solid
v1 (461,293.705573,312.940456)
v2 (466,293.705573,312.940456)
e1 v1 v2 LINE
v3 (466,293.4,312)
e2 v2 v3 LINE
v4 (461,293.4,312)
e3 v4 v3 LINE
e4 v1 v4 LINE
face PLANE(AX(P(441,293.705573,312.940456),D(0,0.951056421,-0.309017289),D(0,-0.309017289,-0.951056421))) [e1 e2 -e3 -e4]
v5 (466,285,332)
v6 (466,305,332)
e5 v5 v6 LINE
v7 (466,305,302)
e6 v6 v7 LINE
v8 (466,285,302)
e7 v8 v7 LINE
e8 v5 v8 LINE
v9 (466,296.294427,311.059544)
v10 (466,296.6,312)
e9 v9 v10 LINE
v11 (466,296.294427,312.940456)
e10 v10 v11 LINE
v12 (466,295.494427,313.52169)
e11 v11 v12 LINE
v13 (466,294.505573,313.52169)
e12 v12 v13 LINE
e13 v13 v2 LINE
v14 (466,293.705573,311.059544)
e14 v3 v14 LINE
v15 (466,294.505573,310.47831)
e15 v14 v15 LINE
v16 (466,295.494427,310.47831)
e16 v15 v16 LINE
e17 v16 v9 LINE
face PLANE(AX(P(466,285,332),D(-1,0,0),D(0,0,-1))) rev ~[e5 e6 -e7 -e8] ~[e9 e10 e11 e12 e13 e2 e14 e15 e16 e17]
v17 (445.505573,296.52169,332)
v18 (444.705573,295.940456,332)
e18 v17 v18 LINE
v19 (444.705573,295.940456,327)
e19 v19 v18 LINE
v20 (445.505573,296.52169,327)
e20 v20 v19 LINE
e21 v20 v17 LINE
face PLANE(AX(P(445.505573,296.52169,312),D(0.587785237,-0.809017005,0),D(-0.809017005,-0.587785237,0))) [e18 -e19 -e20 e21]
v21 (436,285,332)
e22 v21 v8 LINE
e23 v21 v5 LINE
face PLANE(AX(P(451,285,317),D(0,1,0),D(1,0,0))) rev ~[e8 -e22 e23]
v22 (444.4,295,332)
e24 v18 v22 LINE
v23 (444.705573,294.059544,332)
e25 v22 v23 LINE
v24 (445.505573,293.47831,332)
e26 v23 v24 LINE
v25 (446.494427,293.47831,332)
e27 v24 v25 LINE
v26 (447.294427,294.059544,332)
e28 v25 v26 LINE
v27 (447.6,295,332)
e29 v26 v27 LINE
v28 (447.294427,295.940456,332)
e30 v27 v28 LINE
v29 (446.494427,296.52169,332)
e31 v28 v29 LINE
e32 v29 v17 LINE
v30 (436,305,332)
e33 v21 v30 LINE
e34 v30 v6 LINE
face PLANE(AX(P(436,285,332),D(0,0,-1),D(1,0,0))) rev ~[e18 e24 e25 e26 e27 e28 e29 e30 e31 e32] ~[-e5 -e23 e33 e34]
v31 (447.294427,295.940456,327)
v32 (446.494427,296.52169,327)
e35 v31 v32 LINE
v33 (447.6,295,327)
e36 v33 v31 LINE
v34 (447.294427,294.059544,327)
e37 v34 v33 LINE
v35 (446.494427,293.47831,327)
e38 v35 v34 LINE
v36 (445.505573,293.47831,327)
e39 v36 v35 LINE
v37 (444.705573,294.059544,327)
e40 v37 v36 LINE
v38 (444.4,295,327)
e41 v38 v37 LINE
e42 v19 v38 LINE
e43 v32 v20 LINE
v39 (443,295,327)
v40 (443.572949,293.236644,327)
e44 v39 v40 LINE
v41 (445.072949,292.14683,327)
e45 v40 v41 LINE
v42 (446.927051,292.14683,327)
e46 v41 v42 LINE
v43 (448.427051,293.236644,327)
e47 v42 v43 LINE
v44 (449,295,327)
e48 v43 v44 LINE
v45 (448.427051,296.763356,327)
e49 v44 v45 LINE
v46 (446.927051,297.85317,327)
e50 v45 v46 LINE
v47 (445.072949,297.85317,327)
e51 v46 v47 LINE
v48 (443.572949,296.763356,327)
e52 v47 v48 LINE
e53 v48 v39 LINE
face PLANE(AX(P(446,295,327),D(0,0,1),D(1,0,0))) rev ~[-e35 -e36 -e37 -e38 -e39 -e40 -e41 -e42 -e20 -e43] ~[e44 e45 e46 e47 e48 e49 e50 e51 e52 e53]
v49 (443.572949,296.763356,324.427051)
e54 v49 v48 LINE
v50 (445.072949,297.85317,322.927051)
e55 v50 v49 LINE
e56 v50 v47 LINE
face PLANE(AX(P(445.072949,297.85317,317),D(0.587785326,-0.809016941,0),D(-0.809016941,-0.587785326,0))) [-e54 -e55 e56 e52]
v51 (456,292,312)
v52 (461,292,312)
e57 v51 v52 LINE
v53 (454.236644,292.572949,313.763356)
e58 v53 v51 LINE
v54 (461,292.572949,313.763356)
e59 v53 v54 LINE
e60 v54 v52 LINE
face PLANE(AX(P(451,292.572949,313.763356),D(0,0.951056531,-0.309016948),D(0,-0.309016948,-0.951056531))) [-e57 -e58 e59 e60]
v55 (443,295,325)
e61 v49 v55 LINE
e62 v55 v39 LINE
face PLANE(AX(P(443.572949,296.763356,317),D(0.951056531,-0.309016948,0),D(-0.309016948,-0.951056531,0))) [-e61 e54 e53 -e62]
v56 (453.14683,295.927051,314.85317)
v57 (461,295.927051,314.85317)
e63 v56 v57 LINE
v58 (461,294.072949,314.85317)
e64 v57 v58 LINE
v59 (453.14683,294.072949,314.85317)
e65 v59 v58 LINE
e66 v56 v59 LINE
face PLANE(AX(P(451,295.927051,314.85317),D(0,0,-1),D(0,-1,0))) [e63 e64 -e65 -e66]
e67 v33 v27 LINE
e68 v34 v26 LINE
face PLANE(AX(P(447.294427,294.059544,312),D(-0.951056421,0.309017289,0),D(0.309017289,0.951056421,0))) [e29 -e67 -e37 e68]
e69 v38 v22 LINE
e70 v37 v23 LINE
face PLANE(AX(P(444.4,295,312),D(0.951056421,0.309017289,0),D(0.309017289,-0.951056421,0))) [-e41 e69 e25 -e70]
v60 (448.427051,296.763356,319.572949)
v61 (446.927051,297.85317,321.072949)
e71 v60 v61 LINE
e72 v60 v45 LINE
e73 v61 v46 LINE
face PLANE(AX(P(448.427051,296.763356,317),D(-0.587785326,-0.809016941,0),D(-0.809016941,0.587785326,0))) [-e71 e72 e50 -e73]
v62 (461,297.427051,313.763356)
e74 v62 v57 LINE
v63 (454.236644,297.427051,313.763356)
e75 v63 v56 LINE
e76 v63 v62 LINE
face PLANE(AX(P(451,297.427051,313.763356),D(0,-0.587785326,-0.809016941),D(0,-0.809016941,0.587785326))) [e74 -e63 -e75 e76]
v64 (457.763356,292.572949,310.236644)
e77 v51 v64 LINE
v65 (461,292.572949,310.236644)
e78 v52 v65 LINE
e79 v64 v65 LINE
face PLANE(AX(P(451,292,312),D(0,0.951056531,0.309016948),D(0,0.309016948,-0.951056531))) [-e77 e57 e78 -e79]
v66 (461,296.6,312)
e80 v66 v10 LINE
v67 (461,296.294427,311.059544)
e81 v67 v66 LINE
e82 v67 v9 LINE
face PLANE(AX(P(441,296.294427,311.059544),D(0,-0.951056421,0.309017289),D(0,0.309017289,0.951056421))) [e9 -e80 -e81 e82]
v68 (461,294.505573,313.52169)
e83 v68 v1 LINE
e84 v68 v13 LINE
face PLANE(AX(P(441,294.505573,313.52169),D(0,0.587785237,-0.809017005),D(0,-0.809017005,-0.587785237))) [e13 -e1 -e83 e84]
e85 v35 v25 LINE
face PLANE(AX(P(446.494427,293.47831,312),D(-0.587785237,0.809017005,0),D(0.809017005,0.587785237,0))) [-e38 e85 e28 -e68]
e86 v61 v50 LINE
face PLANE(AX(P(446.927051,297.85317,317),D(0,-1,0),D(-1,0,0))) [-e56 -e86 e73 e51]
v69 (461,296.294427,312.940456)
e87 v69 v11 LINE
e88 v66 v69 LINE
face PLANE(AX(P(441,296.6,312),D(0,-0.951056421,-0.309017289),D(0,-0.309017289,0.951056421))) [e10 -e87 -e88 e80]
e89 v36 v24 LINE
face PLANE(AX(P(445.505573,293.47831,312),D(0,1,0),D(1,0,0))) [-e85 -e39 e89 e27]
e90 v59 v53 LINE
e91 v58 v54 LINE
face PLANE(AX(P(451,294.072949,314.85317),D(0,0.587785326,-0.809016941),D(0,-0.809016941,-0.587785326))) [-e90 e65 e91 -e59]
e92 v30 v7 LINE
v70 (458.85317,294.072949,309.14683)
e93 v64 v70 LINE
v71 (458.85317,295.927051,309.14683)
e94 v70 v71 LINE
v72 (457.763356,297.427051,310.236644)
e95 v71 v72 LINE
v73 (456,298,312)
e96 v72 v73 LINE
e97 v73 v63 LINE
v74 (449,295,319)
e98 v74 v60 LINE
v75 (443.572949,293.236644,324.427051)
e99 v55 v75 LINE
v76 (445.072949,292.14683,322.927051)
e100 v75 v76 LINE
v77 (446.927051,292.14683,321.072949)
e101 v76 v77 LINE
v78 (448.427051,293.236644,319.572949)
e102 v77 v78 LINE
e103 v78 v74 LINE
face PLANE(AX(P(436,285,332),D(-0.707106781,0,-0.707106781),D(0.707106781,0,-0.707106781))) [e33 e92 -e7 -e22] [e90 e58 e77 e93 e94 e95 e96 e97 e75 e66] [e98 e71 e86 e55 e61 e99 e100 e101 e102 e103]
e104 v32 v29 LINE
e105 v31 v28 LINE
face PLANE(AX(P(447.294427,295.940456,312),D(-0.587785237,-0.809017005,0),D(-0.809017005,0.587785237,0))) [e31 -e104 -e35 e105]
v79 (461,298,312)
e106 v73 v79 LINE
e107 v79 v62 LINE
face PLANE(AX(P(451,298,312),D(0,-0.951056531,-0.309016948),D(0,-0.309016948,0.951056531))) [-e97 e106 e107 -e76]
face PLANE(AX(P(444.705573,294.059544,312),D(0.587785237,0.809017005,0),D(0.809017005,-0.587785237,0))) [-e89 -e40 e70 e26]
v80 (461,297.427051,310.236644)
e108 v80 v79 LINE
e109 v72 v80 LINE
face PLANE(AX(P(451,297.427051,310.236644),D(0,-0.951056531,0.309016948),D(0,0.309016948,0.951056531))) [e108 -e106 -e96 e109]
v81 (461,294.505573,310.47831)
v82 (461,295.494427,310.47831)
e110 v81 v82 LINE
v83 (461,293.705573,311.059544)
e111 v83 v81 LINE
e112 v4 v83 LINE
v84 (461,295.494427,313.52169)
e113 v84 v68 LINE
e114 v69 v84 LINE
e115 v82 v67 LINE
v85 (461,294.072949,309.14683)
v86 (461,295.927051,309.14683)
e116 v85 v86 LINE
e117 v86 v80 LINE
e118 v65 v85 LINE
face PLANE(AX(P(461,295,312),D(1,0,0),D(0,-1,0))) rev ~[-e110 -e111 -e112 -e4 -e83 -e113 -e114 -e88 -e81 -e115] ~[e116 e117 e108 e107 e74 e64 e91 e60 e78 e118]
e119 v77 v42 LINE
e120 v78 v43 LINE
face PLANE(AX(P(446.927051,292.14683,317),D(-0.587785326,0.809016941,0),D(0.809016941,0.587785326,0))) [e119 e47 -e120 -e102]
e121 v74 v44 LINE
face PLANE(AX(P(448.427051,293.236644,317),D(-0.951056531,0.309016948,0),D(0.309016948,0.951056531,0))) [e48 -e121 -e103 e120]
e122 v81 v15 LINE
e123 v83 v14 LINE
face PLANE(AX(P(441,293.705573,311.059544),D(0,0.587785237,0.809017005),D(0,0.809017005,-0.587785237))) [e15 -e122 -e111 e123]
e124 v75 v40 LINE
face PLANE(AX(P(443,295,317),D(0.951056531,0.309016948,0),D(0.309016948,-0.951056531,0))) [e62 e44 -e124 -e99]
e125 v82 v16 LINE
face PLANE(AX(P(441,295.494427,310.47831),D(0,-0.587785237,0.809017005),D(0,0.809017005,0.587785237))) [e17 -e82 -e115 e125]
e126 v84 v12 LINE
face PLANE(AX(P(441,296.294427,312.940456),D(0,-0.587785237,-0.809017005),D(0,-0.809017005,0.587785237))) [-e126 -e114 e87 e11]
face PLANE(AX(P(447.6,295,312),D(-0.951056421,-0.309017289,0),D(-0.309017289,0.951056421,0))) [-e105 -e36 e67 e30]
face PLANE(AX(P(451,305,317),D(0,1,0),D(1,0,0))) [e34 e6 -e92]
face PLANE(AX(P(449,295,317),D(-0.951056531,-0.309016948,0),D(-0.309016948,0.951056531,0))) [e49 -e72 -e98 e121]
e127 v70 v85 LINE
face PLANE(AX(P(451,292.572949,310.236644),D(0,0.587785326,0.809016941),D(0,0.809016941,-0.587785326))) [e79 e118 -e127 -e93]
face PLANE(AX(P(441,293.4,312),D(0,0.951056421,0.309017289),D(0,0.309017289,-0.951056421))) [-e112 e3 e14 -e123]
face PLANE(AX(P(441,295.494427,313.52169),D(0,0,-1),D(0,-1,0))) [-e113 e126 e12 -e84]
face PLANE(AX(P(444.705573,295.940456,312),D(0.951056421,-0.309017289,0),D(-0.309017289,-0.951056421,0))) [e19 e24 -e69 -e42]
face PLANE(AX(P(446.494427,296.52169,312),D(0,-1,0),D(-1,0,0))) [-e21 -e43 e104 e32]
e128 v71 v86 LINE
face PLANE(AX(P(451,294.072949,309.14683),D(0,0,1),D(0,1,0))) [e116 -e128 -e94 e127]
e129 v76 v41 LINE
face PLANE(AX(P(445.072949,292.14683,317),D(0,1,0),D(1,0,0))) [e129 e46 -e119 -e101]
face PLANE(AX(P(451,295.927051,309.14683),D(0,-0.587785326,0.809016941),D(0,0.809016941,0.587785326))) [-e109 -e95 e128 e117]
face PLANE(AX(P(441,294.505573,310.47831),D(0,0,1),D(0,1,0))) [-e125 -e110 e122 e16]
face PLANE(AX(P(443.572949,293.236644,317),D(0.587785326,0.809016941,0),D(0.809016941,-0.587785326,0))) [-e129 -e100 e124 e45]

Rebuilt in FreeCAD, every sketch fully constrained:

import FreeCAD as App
import Part
import Sketcher
Q = App.Units.Quantity


def add_polygon(sketch, points):
    """Adds a closed chain of lines whose ends are joined by coincident constraints."""
    first, n = sketch.GeometryCount, len(points)
    for a, b in zip(points, points[1:] + points[:1]):
        sketch.addGeometry(Part.LineSegment(App.Vector(*a, 0), App.Vector(*b, 0)), False)
    for i in range(n):
        sketch.addConstraint(Sketcher.Constraint("Coincident", first + i, 2, first + (i + 1) % n, 1))

doc = App.newDocument("Part")
params = doc.addObject("Spreadsheet::Sheet", "Params")
for row, (alias, value) in enumerate([
    ("pad1_length", "30 mm"),
    ("pad2_length", "10 mm"),
    ("pad3_length", "30 mm"),
    ("pad4_length", "10 mm"),
    ("sketch5_width", "60 mm"),
    ("sketch5_height", "30 mm"),
    ("pad5_length", "20 mm"),
    ("sketch6_width", "30 mm"),
    ("pad6_length", "20 mm"),
], start=1):
    params.set(f"A{row}", alias)
    params.set(f"B{row}", "=" + value)
    params.setAlias(f"B{row}", alias)

body = doc.addObject("PartDesign::Body", "Body")

# Sketch on XY plane
sketch1 = body.newObject("Sketcher::SketchObject", "Sketch")
sketch1.AttachmentSupport = (doc.getObject("XY_Plane"), [""])
sketch1.MapMode = "FlatFace"
add_polygon(sketch1, [(1.6, 0), (1.3, 0.9), (0.5, 1.5), (-0.5, 1.5), (-1.3, 0.9), (-1.6, 0), (-1.3, -0.9), (-0.5, -1.5), (0.5, -1.5), (1.3, -0.9)])  # lines 0-9
sketch1.addConstraint([
    Sketcher.Constraint("Horizontal", 2),
    Sketcher.Constraint("Horizontal", 7),
    Sketcher.Constraint("Symmetric", 0, 2, 5, 2, -1, 1),
    Sketcher.Constraint("Symmetric", 1, 2, 6, 2, -1, 1),
    Sketcher.Constraint("Symmetric", 3, 2, 8, 2, -1, 1),
    Sketcher.Constraint("Symmetric", 4, 2, 9, 2, -1, 1),
    Sketcher.Constraint("Symmetric", 0, 2, 3, 2, -2),
    Sketcher.Constraint("PointOnObject", 4, 2, -1),
    Sketcher.Constraint("Parallel", 3, 8),
    Sketcher.Constraint("Vertical", 2, 2, 6, 2),
    Sketcher.Constraint("Equal", 0, 1),
    Sketcher.Constraint("Angle", 0, Q("108.000018 deg")),
    Sketcher.Constraint("Angle", 1, Q("144.000001 deg")),
    Sketcher.Constraint("DistanceX", 4, 2, -1, 1, 1.6),
    Sketcher.Constraint("DistanceX", 1, 2, 0, 2, 0.8),
])
pad1 = body.newObject("PartDesign::Pad", "Pad")
pad1.Profile = sketch1
pad1.setExpression("Length", "Params.pad1_length")
body2 = doc.addObject("PartDesign::Body", "Body001")
doc.recompute()

body.Placement = App.Placement(App.Vector(0, 0, 0), App.Rotation(App.Vector(0, 1, 0), 90))
boolean = body2.newObject("PartDesign::Boolean", "Boolean")
boolean.Type = "Fuse"
boolean.addObjects([body])
body3 = doc.addObject("PartDesign::Body", "Body002")
doc.recompute()

body2.Placement = App.Placement(App.Vector(5, 20, 10), App.Rotation(App.Vector(0, 0, 1), 0))
boolean2 = body3.newObject("PartDesign::Boolean", "Boolean001")
boolean2.Type = "Fuse"
boolean2.addObjects([body2])
body4 = doc.addObject("PartDesign::Body", "Body003")

# Sketch on XY plane
sketch2 = body4.newObject("Sketcher::SketchObject", "Sketch001")
sketch2.AttachmentSupport = (doc.getObject("XY_Plane003"), [""])
sketch2.MapMode = "FlatFace"
add_polygon(sketch2, [(3, 0), (2.4, 1.8), (0.9, 2.9), (-0.9, 2.9), (-2.4, 1.8), (-3, 0), (-2.4, -1.8), (-0.9, -2.9), (0.9, -2.9), (2.4, -1.8)])  # lines 0-9
sketch2.addConstraint([
    Sketcher.Constraint("Horizontal", 2),
    Sketcher.Constraint("Horizontal", 7),
    Sketcher.Constraint("Symmetric", 0, 2, 5, 2, -1, 1),
    Sketcher.Constraint("Symmetric", 1, 2, 6, 2, -1, 1),
    Sketcher.Constraint("Symmetric", 3, 2, 8, 2, -1, 1),
    Sketcher.Constraint("Symmetric", 4, 2, 9, 2, -1, 1),
    Sketcher.Constraint("Symmetric", 0, 2, 3, 2, -2),
    Sketcher.Constraint("PointOnObject", 4, 2, -1),
    Sketcher.Constraint("Parallel", 3, 8),
    Sketcher.Constraint("Vertical", 2, 2, 6, 2),
    Sketcher.Constraint("Equal", 0, 1),
    Sketcher.Constraint("Angle", 0, Q("107.999997 deg")),
    Sketcher.Constraint("Angle", 1, Q("143.999995 deg")),
    Sketcher.Constraint("DistanceX", 4, 2, -1, 1, 3.0),
    Sketcher.Constraint("DistanceX", 1, 2, 0, 2, 1.5),
])
pad2 = body4.newObject("PartDesign::Pad", "Pad001")
pad2.Profile = sketch2
pad2.setExpression("Length", "Params.pad2_length")
body5 = doc.addObject("PartDesign::Body", "Body004")
doc.recompute()

body4.Placement = App.Placement(App.Vector(0, 0, 0), App.Rotation(App.Vector(0, 1, 0), 90))
boolean3 = body5.newObject("PartDesign::Boolean", "Boolean002")
boolean3.Type = "Fuse"
boolean3.addObjects([body4])
body6 = doc.addObject("PartDesign::Body", "Body005")
doc.recompute()

body5.Placement = App.Placement(App.Vector(15, 20, 10), App.Rotation(App.Vector(0, 0, 1), 0))
boolean4 = body6.newObject("PartDesign::Boolean", "Boolean003")
boolean4.Type = "Fuse"
boolean4.addObjects([body5])
body7 = doc.addObject("PartDesign::Body", "Body006")

# Sketch on XY plane
sketch3 = body7.newObject("Sketcher::SketchObject", "Sketch002")
sketch3.AttachmentSupport = (doc.getObject("XY_Plane006"), [""])
sketch3.MapMode = "FlatFace"
add_polygon(sketch3, [(1.6, 0), (1.3, 0.9), (0.5, 1.5), (-0.5, 1.5), (-1.3, 0.9), (-1.6, 0), (-1.3, -0.9), (-0.5, -1.5), (0.5, -1.5), (1.3, -0.9)])  # lines 0-9
sketch3.addConstraint([
    Sketcher.Constraint("Horizontal", 2),
    Sketcher.Constraint("Horizontal", 7),
    Sketcher.Constraint("Symmetric", 0, 2, 5, 2, -1, 1),
    Sketcher.Constraint("Symmetric", 1, 2, 6, 2, -1, 1),
    Sketcher.Constraint("Symmetric", 3, 2, 8, 2, -1, 1),
    Sketcher.Constraint("Symmetric", 4, 2, 9, 2, -1, 1),
    Sketcher.Constraint("Symmetric", 0, 2, 3, 2, -2),
    Sketcher.Constraint("PointOnObject", 4, 2, -1),
    Sketcher.Constraint("Parallel", 3, 8),
    Sketcher.Constraint("Vertical", 2, 2, 6, 2),
    Sketcher.Constraint("Equal", 0, 1),
    Sketcher.Constraint("Angle", 0, Q("108.000018 deg")),
    Sketcher.Constraint("Angle", 1, Q("144.000001 deg")),
    Sketcher.Constraint("DistanceX", 4, 2, -1, 1, 1.6),
    Sketcher.Constraint("DistanceX", 1, 2, 0, 2, 0.8),
])
pad3 = body7.newObject("PartDesign::Pad", "Pad002")
pad3.Profile = sketch3
pad3.setExpression("Length", "Params.pad3_length")
body8 = doc.addObject("PartDesign::Body", "Body007")
doc.recompute()

body7.Placement = App.Placement(App.Vector(0, 0, 0), App.Rotation(App.Vector(1, 0, 0), 90))
boolean5 = body8.newObject("PartDesign::Boolean", "Boolean004")
boolean5.Type = "Fuse"
boolean5.addObjects([body7])
body9 = doc.addObject("PartDesign::Body", "Body008")
doc.recompute()

body8.Placement = App.Placement(App.Vector(10, 20, 10), App.Rotation(App.Vector(0, 0, 1), 0))
boolean6 = body9.newObject("PartDesign::Boolean", "Boolean005")
boolean6.Type = "Fuse"
boolean6.addObjects([body8])
body10 = doc.addObject("PartDesign::Body", "Body009")

# Sketch on XY plane
sketch4 = body10.newObject("Sketcher::SketchObject", "Sketch003")
sketch4.AttachmentSupport = (doc.getObject("XY_Plane009"), [""])
sketch4.MapMode = "FlatFace"
add_polygon(sketch4, [(3, 0), (2.4, 1.8), (0.9, 2.9), (-0.9, 2.9), (-2.4, 1.8), (-3, 0), (-2.4, -1.8), (-0.9, -2.9), (0.9, -2.9), (2.4, -1.8)])  # lines 0-9
sketch4.addConstraint([
    Sketcher.Constraint("Horizontal", 2),
    Sketcher.Constraint("Horizontal", 7),
    Sketcher.Constraint("Symmetric", 0, 2, 5, 2, -1, 1),
    Sketcher.Constraint("Symmetric", 1, 2, 6, 2, -1, 1),
    Sketcher.Constraint("Symmetric", 3, 2, 8, 2, -1, 1),
    Sketcher.Constraint("Symmetric", 4, 2, 9, 2, -1, 1),
    Sketcher.Constraint("Symmetric", 0, 2, 3, 2, -2),
    Sketcher.Constraint("PointOnObject", 4, 2, -1),
    Sketcher.Constraint("Parallel", 3, 8),
    Sketcher.Constraint("Vertical", 2, 2, 6, 2),
    Sketcher.Constraint("Equal", 0, 1),
    Sketcher.Constraint("Angle", 0, Q("107.999997 deg")),
    Sketcher.Constraint("Angle", 1, Q("143.999995 deg")),
    Sketcher.Constraint("DistanceX", 4, 2, -1, 1, 3.0),
    Sketcher.Constraint("DistanceX", 1, 2, 0, 2, 1.5),
])
pad4 = body10.newObject("PartDesign::Pad", "Pad003")
pad4.Profile = sketch4
pad4.setExpression("Length", "Params.pad4_length")
body11 = doc.addObject("PartDesign::Body", "Body010")
doc.recompute()

body10.Placement = App.Placement(App.Vector(0, 0, 0), App.Rotation(App.Vector(1, 0, 0), 90))
boolean7 = body11.newObject("PartDesign::Boolean", "Boolean006")
boolean7.Type = "Fuse"
boolean7.addObjects([body10])
body12 = doc.addObject("PartDesign::Body", "Body011")
doc.recompute()

body11.Placement = App.Placement(App.Vector(10, 15, 10), App.Rotation(App.Vector(0, 0, 1), 0))
boolean8 = body12.newObject("PartDesign::Boolean", "Boolean007")
boolean8.Type = "Fuse"
boolean8.addObjects([body11])
body13 = doc.addObject("PartDesign::Body", "Body012")

# Sketch on XY plane
sketch5 = body13.newObject("Sketcher::SketchObject", "Sketch004")
sketch5.AttachmentSupport = (doc.getObject("XY_Plane012"), [""])
sketch5.MapMode = "FlatFace"
add_polygon(sketch5, [(0, 30), (0, 0), (60, 0), (60, 30)])  # lines 0-3
sketch5.addConstraint([
    Sketcher.Constraint("Vertical", 0),
    Sketcher.Constraint("Horizontal", 1),
    Sketcher.Constraint("Vertical", 2),
    Sketcher.Constraint("Horizontal", 3),
    Sketcher.Constraint("Coincident", 0, 2, -1, 1),
    Sketcher.Constraint("DistanceX", 1, 1, 1, 2, 60.0),
    Sketcher.Constraint("DistanceY", 0, 2, 0, 1, 30.0),
])
sketch5.setExpression("Constraints[9]", "Params.sketch5_width")
sketch5.setExpression("Constraints[10]", "Params.sketch5_height")
pad5 = body13.newObject("PartDesign::Pad", "Pad004")
pad5.Profile = sketch5
pad5.setExpression("Length", "Params.pad5_length")
body14 = doc.addObject("PartDesign::Body", "Body013")
doc.recompute()

body13.Placement = App.Placement(App.Vector(0, 0, 0), App.Rotation(App.Vector(0, 0, 1), 45))
boolean9 = body14.newObject("PartDesign::Boolean", "Boolean008")
boolean9.Type = "Fuse"
boolean9.addObjects([body13])
doc.recompute()

boolean10 = body14.newObject("PartDesign::Boolean", "Boolean009")
boolean10.Type = "Fuse"
boolean10.addObjects([body3])
doc.recompute()

boolean11 = body14.newObject("PartDesign::Boolean", "Boolean010")
boolean11.Type = "Fuse"
boolean11.addObjects([body6])
doc.recompute()

boolean12 = body14.newObject("PartDesign::Boolean", "Boolean011")
boolean12.Type = "Fuse"
boolean12.addObjects([body9])
doc.recompute()

boolean13 = body14.newObject("PartDesign::Boolean", "Boolean012")
boolean13.Type = "Fuse"
boolean13.addObjects([body12])
body15 = doc.addObject("PartDesign::Body", "Body014")

# Sketch on XY plane
sketch6 = body15.newObject("Sketcher::SketchObject", "Sketch005")
sketch6.AttachmentSupport = (doc.getObject("XY_Plane014"), [""])
sketch6.MapMode = "FlatFace"
add_polygon(sketch6, [(0, 30), (0, 0), (30, 0), (30, 30)])  # lines 0-3
sketch6.addConstraint([
    Sketcher.Constraint("Vertical", 0),
    Sketcher.Constraint("Horizontal", 1),
    Sketcher.Constraint("Vertical", 2),
    Sketcher.Constraint("Horizontal", 3),
    Sketcher.Constraint("Coincident", 0, 2, -1, 1),
    Sketcher.Constraint("Equal", 3, 0),
    Sketcher.Constraint("DistanceX", 1, 1, 1, 2, 30.0),
])
sketch6.setExpression("Constraints[10]", "Params.sketch6_width")
pad6 = body15.newObject("PartDesign::Pad", "Pad005")
pad6.Profile = sketch6
pad6.setExpression("Length", "Params.pad6_length")
doc.recompute()

boolean14 = body15.newObject("PartDesign::Boolean", "Boolean013")
boolean14.Type = "Cut"
boolean14.addObjects([body14])
body16 = doc.addObject("PartDesign::Body", "Body015")
doc.recompute()

body15.Placement = App.Placement(App.Vector(0, 0, 0), App.Rotation(App.Vector(1, 0, 0), 270))
boolean15 = body16.newObject("PartDesign::Boolean", "Boolean014")
boolean15.Type = "Fuse"
boolean15.addObjects([body15])
body17 = doc.addObject("PartDesign::Body", "Body016")
doc.recompute()

body16.Placement = App.Placement(App.Vector(436, 285, 332), App.Rotation(App.Vector(0, 0, 1), 0))
boolean16 = body17.newObject("PartDesign::Boolean", "Boolean015")
boolean16.Type = "Fuse"
boolean16.addObjects([body16])

doc.recompute()
